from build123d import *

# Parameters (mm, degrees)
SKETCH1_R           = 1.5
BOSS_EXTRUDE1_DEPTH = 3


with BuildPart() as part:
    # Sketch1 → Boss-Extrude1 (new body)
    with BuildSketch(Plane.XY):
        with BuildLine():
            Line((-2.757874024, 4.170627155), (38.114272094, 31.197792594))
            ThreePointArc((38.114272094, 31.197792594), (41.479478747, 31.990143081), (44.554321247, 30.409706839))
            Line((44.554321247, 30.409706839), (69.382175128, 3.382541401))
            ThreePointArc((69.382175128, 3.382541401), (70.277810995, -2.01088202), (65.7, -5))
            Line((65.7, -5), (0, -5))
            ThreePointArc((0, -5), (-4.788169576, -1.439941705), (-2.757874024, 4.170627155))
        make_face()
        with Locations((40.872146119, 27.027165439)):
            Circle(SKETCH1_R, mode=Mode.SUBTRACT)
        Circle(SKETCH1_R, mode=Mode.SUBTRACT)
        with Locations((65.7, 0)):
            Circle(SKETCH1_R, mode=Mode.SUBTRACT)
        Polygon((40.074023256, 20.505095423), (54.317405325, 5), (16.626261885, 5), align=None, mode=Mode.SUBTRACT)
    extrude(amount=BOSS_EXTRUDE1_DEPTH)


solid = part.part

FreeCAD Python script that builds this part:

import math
import FreeCAD as App
import Part
import Sketcher
Q = App.Units.Quantity

doc = App.newDocument("Part")
body = doc.addObject("PartDesign::Body", "Body")

# Sketch on XY plane
sketch1 = body.newObject("Sketcher::SketchObject", "Sketch")
sketch1.AttachmentSupport = (doc.getObject("XY_Plane"), [""])
sketch1.MapMode = "FlatFace"
sketch1.addGeometry([
    Part.LineSegment(App.Vector(38.1, 31.2, 0), App.Vector(-2.8, 4.2, 0)),  # 0
    Part.ArcOfCircle(Part.Circle(App.Vector(0, 0, 0), App.Vector(0, 0, 1), 5), math.radians(123), math.radians(270)),  # 1
    Part.LineSegment(App.Vector(0, -5, 0), App.Vector(65.7, -5, 0)),  # 2
    Part.ArcOfCircle(Part.Circle(App.Vector(65.7, 0, 0), App.Vector(0, 0, 1), 5), math.radians(-90), math.radians(43)),  # 3
    Part.LineSegment(App.Vector(69.4, 3.4, 0), App.Vector(44.6, 30.4, 0)),  # 4
    Part.ArcOfCircle(Part.Circle(App.Vector(40.9, 27, 0), App.Vector(0, 0, 1), 5), math.radians(43), math.radians(123)),  # 5
    Part.Circle(App.Vector(65.7, 0, 0), App.Vector(0, 0, 1), 1.5),  # 6
    Part.LineSegment(App.Vector(40.1, 20.5, 0), App.Vector(54.3, 5, 0)),  # 7
    Part.LineSegment(App.Vector(54.3, 5, 0), App.Vector(16.6, 5, 0)),  # 8
    Part.LineSegment(App.Vector(16.6, 5, 0), App.Vector(40.1, 20.5, 0)),  # 9
    Part.Circle(App.Vector(0, 0, 0), App.Vector(0, 0, 1), 1.5),  # 10
    Part.Circle(App.Vector(40.9, 27, 0), App.Vector(0, 0, 1), 1.5),  # 11
], False)
sketch1.addConstraint([
    Sketcher.Constraint("Tangent", 0, 2, 1, 1),
    Sketcher.Constraint("Tangent", 1, 2, 2, 1),
    Sketcher.Constraint("Tangent", 2, 2, 3, 1),
    Sketcher.Constraint("Tangent", 3, 2, 4, 1),
    Sketcher.Constraint("Tangent", 4, 2, 5, 1),
    Sketcher.Constraint("Tangent", 5, 2, 0, 1),
    Sketcher.Constraint("Coincident", 7, 2, 8, 1),
    Sketcher.Constraint("Coincident", 8, 2, 9, 1),
    Sketcher.Constraint("Coincident", 9, 2, 7, 1),
    Sketcher.Constraint("Horizontal", 2),
    Sketcher.Constraint("Horizontal", 8),
    Sketcher.Constraint("Coincident", 1, 3, -1, 1),
    Sketcher.Constraint("Coincident", 10, 3, -1, 1),
    Sketcher.Constraint("Coincident", 6, 3, 3, 3),
    Sketcher.Constraint("Coincident", 11, 3, 5, 3),
    Sketcher.Constraint("Equal", 1, 3),
    Sketcher.Constraint("Equal", 3, 5),
    Sketcher.Constraint("Equal", 6, 10),
    Sketcher.Constraint("Equal", 10, 11),
    Sketcher.Constraint("Parallel", 4, 7),
    Sketcher.Constraint("Parallel", 0, 9),
    Sketcher.Constraint("Diameter", 6, Q("3 mm")),
    Sketcher.Constraint("Radius", 1, Q("5 mm")),
    Sketcher.Constraint("Distance", 0, Q("49 mm")),
    Sketcher.Constraint("DistanceX", 2, 1, 2, 2, Q("65.7 mm")),
    Sketcher.Constraint("DistanceY", -1, 1, 7, 2, Q("5 mm")),
    Sketcher.Constraint("Distance", 4, Q("36.7 mm")),
    Sketcher.Constraint("Distance", 7, Q("21.054261 mm")),
    Sketcher.Constraint("DistanceX", -1, 1, 8, 2, Q("16.626262 mm")),
])
pad1 = body.newObject("PartDesign::Pad", "Pad")
pad1.Profile = sketch1
pad1.Length = 3

doc.recompute()
